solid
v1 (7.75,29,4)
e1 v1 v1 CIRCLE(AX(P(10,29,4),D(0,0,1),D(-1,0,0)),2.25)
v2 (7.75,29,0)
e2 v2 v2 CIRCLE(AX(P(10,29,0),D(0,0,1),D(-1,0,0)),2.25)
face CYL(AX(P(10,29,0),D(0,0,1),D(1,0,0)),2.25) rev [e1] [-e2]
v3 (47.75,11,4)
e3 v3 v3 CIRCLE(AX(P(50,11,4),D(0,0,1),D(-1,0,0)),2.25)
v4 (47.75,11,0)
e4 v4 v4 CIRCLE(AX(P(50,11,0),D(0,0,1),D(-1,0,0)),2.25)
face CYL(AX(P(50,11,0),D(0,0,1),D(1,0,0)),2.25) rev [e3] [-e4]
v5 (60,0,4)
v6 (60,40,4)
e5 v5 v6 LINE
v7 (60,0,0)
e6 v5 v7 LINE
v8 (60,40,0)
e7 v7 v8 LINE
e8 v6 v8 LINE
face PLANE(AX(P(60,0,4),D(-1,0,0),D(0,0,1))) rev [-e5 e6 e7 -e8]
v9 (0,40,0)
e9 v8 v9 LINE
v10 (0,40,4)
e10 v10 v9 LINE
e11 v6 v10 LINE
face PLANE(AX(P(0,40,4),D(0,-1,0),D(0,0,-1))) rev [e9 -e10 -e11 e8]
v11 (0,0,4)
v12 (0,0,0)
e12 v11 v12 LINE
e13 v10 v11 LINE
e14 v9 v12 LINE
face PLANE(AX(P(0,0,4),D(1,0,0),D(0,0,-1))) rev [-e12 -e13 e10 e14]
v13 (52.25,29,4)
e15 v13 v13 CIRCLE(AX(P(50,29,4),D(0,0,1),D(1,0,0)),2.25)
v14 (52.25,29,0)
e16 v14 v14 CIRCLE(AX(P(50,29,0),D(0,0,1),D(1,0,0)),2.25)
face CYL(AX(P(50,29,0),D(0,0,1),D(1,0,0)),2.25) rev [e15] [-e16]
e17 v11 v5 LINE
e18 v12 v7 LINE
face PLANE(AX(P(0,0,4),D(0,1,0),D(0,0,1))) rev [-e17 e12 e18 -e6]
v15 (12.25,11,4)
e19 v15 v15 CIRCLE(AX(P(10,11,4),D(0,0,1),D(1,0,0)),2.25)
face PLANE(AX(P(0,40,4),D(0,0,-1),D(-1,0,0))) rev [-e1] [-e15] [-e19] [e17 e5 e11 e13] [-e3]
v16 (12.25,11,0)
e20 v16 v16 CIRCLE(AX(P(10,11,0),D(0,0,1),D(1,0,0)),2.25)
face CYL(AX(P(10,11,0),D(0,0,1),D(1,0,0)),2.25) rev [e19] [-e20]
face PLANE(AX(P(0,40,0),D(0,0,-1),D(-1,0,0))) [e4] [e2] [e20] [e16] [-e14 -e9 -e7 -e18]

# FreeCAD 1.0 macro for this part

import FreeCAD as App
import Part
import Sketcher

V = App.Vector
Q = App.Units.Quantity


def add_polygon(sketch, points):
    """Adds a closed chain of lines whose ends are joined by coincident constraints."""
    first, n = sketch.GeometryCount, len(points)
    for a, b in zip(points, points[1:] + points[:1]):
        sketch.addGeometry(Part.LineSegment(App.Vector(*a, 0), App.Vector(*b, 0)), False)
    for i in range(n):
        sketch.addConstraint(Sketcher.Constraint("Coincident", first + i, 2, first + (i + 1) % n, 1))

doc = App.newDocument("Part")
body = doc.addObject("PartDesign::Body", "Body")

sketch1 = body.newObject("Sketcher::SketchObject", "Sketch")
sketch1.AttachmentSupport = (doc.getObject("XY_Plane"), [""])
sketch1.MapMode = "FlatFace"
add_polygon(sketch1, [(0, 40), (0, 0), (60, 0), (60, 40)])
sketch1.addConstraint(Sketcher.Constraint("Vertical", 0))
sketch1.addConstraint(Sketcher.Constraint("Horizontal", 1))
sketch1.addConstraint(Sketcher.Constraint("Vertical", 2))
sketch1.addConstraint(Sketcher.Constraint("Horizontal", 3))
sketch1.addConstraint(Sketcher.Constraint("Coincident", 0, 2, -1, 1))
sketch1.addConstraint(Sketcher.Constraint("DistanceX", 1, 1, 1, 2, Q("60 mm")))
sketch1.addConstraint(Sketcher.Constraint("DistanceY", 0, 2, 0, 1, Q("40 mm")))
pad1 = body.newObject("PartDesign::Pad", "Pad")
pad1.Profile = sketch1
pad1.Length = 4

sketch2 = body.newObject("Sketcher::SketchObject", "Sketch001")
sketch2.AttachmentSupport = (doc.getObject("XY_Plane"), [""])
sketch2.MapMode = "FlatFace"
sketch2.AttachmentOffset = App.Placement(V(0, 0, 4), App.Rotation())
sketch2.addGeometry(Part.Circle(V(10, 11, 0), V(0, 0, 1), 2.2), False)
sketch2.addGeometry(Part.Circle(V(50, 11, 0), V(0, 0, 1), 2.2), False)
sketch2.addGeometry(Part.Circle(V(50, 29, 0), V(0, 0, 1), 2.2), False)
sketch2.addGeometry(Part.Circle(V(10, 29, 0), V(0, 0, 1), 2.2), False)
sketch2.addConstraint(Sketcher.Constraint("Equal", 0, 1))
sketch2.addConstraint(Sketcher.Constraint("Equal", 1, 2))
sketch2.addConstraint(Sketcher.Constraint("Equal", 2, 3))
sketch2.addConstraint(Sketcher.Constraint("Horizontal", 0, 3, 1, 3))
sketch2.addConstraint(Sketcher.Constraint("Horizontal", 2, 3, 3, 3))
sketch2.addConstraint(Sketcher.Constraint("Vertical", 1, 3, 2, 3))
sketch2.addConstraint(Sketcher.Constraint("Vertical", 0, 3, 3, 3))
sketch2.addConstraint(Sketcher.Constraint("Diameter", 0, Q("4.5 mm")))
sketch2.addConstraint(Sketcher.Constraint("DistanceX", -1, 1, 0, 3, Q("10 mm")))
sketch2.addConstraint(Sketcher.Constraint("DistanceY", -1, 1, 0, 3, Q("11 mm")))
sketch2.addConstraint(Sketcher.Constraint("DistanceX", -1, 1, 1, 3, Q("50 mm")))
sketch2.addConstraint(Sketcher.Constraint("DistanceY", -1, 1, 2, 3, Q("29 mm")))
pocket1 = body.newObject("PartDesign::Pocket", "Pocket")
pocket1.Profile = sketch2
pocket1.Type = "ThroughAll"

doc.recompute()
